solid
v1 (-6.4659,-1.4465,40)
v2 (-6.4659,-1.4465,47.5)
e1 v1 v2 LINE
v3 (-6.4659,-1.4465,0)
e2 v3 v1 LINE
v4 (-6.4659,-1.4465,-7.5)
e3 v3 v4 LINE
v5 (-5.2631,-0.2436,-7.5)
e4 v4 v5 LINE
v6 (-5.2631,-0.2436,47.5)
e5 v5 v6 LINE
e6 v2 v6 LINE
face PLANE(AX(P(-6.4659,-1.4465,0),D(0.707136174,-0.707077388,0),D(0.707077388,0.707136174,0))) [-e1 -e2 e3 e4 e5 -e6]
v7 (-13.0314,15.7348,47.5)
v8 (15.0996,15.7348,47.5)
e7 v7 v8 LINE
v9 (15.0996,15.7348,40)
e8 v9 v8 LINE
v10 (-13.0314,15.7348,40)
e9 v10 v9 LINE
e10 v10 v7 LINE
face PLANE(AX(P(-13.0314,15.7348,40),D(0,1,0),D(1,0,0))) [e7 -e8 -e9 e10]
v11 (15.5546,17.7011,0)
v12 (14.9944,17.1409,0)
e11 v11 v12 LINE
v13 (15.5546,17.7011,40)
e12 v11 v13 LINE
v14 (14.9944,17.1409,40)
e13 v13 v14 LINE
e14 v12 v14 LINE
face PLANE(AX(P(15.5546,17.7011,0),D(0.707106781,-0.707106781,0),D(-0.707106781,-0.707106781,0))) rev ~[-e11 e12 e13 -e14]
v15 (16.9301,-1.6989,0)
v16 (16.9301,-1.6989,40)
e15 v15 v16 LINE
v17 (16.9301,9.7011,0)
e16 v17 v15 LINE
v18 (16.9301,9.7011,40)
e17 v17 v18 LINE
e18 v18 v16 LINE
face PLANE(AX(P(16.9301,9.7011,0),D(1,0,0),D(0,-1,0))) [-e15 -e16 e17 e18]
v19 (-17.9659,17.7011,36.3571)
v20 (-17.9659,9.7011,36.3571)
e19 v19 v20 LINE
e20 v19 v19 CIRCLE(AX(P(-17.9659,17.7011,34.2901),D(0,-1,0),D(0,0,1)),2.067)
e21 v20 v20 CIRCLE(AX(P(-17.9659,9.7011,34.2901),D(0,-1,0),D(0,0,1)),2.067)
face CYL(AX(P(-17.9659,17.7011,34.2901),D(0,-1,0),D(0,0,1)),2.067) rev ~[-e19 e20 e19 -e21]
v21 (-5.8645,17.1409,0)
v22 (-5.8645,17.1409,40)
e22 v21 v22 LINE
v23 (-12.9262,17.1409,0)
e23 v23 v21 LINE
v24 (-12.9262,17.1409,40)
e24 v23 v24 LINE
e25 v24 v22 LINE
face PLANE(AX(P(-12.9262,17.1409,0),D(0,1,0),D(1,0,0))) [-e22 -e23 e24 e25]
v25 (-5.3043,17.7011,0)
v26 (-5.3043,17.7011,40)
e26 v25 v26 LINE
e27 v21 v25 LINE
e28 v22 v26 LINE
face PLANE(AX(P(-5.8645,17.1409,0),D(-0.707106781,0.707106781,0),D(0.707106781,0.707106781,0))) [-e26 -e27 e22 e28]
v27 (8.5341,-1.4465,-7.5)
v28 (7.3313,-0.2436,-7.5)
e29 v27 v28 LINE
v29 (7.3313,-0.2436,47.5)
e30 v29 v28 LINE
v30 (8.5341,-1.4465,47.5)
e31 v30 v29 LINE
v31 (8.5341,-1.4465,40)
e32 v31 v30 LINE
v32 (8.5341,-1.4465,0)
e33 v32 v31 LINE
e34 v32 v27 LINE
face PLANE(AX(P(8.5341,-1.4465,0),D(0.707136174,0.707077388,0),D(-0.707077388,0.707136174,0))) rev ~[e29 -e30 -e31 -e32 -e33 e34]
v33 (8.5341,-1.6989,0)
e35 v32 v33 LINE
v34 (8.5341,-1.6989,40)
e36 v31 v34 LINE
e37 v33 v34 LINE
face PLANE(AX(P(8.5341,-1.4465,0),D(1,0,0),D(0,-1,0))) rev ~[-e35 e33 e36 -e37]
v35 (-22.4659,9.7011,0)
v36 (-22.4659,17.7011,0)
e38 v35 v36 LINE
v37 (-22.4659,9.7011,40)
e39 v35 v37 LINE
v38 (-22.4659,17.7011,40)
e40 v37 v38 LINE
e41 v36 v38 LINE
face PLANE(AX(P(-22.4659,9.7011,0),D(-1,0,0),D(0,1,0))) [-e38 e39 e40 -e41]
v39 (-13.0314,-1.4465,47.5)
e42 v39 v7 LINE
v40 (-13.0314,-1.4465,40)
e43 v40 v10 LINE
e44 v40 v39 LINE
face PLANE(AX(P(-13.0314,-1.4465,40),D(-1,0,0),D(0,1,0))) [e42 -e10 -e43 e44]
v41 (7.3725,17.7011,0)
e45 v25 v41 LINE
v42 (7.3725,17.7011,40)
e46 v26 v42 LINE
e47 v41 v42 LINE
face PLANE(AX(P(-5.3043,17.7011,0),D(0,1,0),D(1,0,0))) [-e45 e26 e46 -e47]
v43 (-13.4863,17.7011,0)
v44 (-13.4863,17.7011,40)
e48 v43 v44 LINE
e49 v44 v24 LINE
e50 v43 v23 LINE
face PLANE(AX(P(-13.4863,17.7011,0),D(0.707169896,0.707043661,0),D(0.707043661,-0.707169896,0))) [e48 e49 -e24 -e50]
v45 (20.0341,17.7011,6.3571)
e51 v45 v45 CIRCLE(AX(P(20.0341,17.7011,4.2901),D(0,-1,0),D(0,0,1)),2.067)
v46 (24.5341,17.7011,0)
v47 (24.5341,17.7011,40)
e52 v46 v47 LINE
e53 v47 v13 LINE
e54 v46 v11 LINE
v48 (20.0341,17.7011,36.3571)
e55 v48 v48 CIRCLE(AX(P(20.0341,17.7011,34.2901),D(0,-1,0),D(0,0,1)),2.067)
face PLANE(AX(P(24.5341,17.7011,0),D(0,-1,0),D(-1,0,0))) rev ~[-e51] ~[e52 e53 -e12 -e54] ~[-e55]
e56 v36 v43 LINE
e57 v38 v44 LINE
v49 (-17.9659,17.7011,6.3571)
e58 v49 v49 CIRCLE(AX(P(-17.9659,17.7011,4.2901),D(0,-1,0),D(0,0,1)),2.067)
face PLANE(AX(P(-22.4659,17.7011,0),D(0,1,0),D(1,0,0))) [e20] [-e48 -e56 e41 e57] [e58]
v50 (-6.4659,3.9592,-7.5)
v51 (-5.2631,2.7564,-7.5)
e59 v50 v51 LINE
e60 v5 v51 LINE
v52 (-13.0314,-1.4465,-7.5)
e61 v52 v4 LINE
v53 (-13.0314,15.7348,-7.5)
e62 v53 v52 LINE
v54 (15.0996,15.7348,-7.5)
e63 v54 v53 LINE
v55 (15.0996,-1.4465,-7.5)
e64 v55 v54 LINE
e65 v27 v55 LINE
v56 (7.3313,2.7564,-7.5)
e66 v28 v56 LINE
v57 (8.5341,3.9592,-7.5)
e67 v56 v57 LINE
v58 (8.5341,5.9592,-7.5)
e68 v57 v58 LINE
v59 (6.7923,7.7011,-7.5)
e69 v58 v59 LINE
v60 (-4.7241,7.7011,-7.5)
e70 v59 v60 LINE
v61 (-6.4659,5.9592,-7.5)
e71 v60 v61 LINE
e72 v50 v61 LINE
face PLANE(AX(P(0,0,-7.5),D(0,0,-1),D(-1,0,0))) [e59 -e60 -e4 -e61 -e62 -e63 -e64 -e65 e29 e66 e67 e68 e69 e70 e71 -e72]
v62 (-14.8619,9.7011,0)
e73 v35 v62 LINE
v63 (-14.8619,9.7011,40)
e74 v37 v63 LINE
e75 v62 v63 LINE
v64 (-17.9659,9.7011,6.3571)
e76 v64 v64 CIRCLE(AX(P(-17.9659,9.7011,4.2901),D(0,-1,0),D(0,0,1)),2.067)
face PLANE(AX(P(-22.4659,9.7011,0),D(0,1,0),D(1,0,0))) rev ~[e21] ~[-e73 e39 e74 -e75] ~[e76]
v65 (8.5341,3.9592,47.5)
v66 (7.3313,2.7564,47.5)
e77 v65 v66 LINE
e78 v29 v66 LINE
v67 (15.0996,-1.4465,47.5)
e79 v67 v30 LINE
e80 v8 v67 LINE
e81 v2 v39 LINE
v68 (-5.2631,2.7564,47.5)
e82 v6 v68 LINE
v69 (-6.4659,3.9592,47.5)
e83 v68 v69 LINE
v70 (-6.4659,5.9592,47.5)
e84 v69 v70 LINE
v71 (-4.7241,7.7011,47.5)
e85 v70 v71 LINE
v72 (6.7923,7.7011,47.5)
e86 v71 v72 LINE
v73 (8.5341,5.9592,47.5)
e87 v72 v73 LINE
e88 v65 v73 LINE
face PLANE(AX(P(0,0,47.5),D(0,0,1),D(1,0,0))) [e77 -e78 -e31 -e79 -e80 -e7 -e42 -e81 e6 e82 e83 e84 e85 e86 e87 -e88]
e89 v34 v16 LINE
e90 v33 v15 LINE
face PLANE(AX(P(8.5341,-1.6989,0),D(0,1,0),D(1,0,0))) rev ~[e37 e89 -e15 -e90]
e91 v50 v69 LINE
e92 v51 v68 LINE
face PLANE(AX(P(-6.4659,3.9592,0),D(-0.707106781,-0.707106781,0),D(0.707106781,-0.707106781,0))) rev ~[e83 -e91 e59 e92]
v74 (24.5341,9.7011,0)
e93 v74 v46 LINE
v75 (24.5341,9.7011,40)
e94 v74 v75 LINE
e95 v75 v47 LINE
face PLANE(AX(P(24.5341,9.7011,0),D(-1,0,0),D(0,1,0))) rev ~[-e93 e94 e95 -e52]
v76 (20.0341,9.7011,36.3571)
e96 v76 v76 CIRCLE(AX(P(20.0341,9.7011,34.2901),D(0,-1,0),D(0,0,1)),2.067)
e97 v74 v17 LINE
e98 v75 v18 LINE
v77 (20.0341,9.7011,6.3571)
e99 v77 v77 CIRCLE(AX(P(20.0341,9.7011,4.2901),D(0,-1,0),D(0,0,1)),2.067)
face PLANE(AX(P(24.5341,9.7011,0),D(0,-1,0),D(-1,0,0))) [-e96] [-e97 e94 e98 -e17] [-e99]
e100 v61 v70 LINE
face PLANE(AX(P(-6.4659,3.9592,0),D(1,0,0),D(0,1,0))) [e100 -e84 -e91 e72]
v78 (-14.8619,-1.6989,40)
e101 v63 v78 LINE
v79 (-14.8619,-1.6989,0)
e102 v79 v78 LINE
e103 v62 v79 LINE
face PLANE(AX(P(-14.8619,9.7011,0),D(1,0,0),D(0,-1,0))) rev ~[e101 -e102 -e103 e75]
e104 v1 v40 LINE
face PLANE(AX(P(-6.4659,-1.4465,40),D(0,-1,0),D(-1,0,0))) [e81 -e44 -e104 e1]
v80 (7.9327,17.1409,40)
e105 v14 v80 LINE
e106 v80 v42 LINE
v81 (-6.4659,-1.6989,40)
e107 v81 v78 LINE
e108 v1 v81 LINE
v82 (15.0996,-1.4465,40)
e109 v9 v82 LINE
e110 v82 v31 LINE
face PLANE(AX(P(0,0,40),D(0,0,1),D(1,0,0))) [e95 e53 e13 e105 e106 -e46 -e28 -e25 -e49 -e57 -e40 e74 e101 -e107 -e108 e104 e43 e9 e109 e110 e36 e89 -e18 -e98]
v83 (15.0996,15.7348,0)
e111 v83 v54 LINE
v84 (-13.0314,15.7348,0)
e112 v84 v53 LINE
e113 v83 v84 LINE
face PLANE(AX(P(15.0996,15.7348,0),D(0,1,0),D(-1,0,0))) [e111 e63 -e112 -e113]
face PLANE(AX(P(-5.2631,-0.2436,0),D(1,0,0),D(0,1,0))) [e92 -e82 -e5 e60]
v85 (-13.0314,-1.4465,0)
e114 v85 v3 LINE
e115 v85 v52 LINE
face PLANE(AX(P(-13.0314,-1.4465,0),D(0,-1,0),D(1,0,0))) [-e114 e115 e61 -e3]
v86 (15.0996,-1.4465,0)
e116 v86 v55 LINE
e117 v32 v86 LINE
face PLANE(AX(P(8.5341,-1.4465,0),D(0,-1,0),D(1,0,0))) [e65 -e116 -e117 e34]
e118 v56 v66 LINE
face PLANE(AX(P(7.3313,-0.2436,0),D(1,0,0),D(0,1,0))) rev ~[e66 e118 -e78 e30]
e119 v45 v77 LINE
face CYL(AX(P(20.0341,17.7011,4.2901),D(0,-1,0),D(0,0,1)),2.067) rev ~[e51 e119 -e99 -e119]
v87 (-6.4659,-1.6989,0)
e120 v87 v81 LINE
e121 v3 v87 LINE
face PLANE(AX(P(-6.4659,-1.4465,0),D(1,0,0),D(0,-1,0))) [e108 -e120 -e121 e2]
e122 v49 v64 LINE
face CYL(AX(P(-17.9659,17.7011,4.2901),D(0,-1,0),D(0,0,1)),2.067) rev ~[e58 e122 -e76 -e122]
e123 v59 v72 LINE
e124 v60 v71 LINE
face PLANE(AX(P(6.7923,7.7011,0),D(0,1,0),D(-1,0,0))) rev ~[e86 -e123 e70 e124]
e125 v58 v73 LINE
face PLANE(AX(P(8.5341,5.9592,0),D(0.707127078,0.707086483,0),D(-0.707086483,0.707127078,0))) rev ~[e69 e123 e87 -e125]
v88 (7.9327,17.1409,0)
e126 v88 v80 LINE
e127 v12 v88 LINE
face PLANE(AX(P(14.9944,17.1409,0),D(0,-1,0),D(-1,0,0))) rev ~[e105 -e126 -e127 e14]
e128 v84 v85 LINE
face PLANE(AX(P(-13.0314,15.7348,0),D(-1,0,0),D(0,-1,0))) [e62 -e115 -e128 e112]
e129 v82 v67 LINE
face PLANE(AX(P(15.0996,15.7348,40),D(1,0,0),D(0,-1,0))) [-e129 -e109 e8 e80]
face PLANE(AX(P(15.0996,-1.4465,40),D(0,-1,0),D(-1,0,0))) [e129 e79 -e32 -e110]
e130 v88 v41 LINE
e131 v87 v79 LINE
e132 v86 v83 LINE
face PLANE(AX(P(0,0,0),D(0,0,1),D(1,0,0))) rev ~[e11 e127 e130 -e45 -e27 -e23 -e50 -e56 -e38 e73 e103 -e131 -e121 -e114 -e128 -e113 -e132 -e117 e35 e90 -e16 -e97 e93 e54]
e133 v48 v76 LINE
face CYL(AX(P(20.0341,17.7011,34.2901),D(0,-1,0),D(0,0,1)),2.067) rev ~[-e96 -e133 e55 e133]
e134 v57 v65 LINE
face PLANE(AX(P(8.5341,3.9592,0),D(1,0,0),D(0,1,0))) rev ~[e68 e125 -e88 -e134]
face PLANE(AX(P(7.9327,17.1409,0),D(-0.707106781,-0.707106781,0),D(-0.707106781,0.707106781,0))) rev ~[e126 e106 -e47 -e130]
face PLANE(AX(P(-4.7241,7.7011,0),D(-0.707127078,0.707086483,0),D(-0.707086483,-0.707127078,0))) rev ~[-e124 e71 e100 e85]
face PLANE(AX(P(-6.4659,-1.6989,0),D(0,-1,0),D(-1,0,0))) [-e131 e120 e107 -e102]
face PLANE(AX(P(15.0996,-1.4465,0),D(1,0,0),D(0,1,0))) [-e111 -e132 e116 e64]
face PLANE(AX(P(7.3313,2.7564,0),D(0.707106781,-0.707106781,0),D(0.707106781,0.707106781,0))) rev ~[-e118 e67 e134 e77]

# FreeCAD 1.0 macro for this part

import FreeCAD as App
import Part
import Sketcher


def add_polygon(sketch, points):
    """Adds a closed chain of lines whose ends are joined by coincident constraints."""
    first, n = sketch.GeometryCount, len(points)
    for a, b in zip(points, points[1:] + points[:1]):
        sketch.addGeometry(Part.LineSegment(App.Vector(*a, 0), App.Vector(*b, 0)), False)
    for i in range(n):
        sketch.addConstraint(Sketcher.Constraint("Coincident", first + i, 2, first + (i + 1) % n, 1))

doc = App.newDocument("Part")
body = doc.addObject("PartDesign::Body", "Body")

sketch1 = body.newObject("Sketcher::SketchObject", "Sketch")
sketch1.AttachmentSupport = (doc.getObject("XY_Plane"), [""])
sketch1.MapMode = "FlatFace"
add_polygon(sketch1, [(-4.72, 7.7), (6.79, 7.7), (8.53, 5.96), (8.53, 3.96), (7.33, 2.76), (7.33, -0.24), (8.53, -1.45), (8.53, -1.7), (16.93, -1.7), (16.93, 9.7), (24.53, 9.7), (24.53, 17.7), (15.55, 17.7), (14.99, 17.14), (7.93, 17.14), (7.37, 17.7), (-5.3, 17.7), (-5.86, 17.14), (-12.93, 17.14), (-13.49, 17.7), (-22.47, 17.7), (-22.47, 9.7), (-14.86, 9.7), (-14.86, -1.7), (-6.47, -1.7), (-6.47, -1.45), (-5.26, -0.24), (-5.26, 2.76), (-6.47, 3.96), (-6.47, 5.96)])
sketch1.addConstraint([
    Sketcher.Constraint("Horizontal", 0),
    Sketcher.Constraint("Vertical", 2),
    Sketcher.Constraint("Vertical", 4),
    Sketcher.Constraint("Vertical", 6),
    Sketcher.Constraint("Horizontal", 7),
    Sketcher.Constraint("Vertical", 8),
    Sketcher.Constraint("Horizontal", 9),
    Sketcher.Constraint("Vertical", 10),
    Sketcher.Constraint("Horizontal", 11),
    Sketcher.Constraint("Horizontal", 13),
    Sketcher.Constraint("Horizontal", 15),
    Sketcher.Constraint("Horizontal", 17),
    Sketcher.Constraint("Horizontal", 19),
    Sketcher.Constraint("Vertical", 20),
    Sketcher.Constraint("Horizontal", 21),
    Sketcher.Constraint("Vertical", 22),
    Sketcher.Constraint("Horizontal", 23),
    Sketcher.Constraint("Vertical", 24),
    Sketcher.Constraint("Vertical", 26),
    Sketcher.Constraint("Vertical", 28),
    Sketcher.Constraint("Perpendicular", 1, 3),
    Sketcher.Constraint("Perpendicular", 3, 5),
    Sketcher.Constraint("Perpendicular", 5, 12),
    Sketcher.Constraint("Perpendicular", 12, 14),
    Sketcher.Constraint("Perpendicular", 14, 16),
    Sketcher.Constraint("Perpendicular", 16, 18),
    Sketcher.Constraint("Perpendicular", 18, 25),
    Sketcher.Constraint("Perpendicular", 25, 27),
    Sketcher.Constraint("Perpendicular", 27, 29),
    Sketcher.Constraint("Horizontal", 11, 2, 14, 2),
    Sketcher.Constraint("Horizontal", 13, 2, 16, 2),
    Sketcher.Constraint("Horizontal", 15, 2, 18, 2),
    Sketcher.Constraint("Horizontal", 9, 2, 20, 2),
    Sketcher.Constraint("Horizontal", 7, 2, 22, 2),
    Sketcher.Constraint("Horizontal", 5, 2, 24, 2),
    Sketcher.Constraint("Horizontal", 4, 2, 25, 2),
    Sketcher.Constraint("Horizontal", 3, 2, 26, 2),
    Sketcher.Constraint("Horizontal", 2, 2, 27, 2),
    Sketcher.Constraint("Horizontal", 1, 2, 28, 2),
    Sketcher.Constraint("Vertical", 2, 2, 5, 2),
    Sketcher.Constraint("Vertical", 24, 2, 27, 2),
    Sketcher.Constraint("Equal", 13, 17),
    Sketcher.Constraint("Equal", 11, 19),
    Sketcher.Constraint("Equal", 9, 21),
    Sketcher.Constraint("Equal", 7, 23),
    Sketcher.Constraint("DistanceY", 2, 2, 2, 1, 2.0),
    Sketcher.Constraint("DistanceY", 4, 2, 4, 1, 3.0),
    Sketcher.Constraint("DistanceY", 0, 2, 8, 2, 2.0),
    Sketcher.Constraint("DistanceY", 10, 1, 10, 2, 8.0),
    Sketcher.Constraint("DistanceY", 8, 1, 8, 2, 11.4),
    Sketcher.Constraint("DistanceX", 1, 2, 9, 2, 16.0),
    Sketcher.Constraint("DistanceX", 23, 2, 6, 2, 15.0),
    Sketcher.Constraint("DistanceX", 7, 1, 7, 2, 8.396),
    Sketcher.Constraint("DistanceX", -1, 1, 7, 2, 16.93),
    Sketcher.Constraint("DistanceX", 18, 2, 17, 2, 0.56),
    Sketcher.Constraint("Distance", 3, 1.701),
    Sketcher.Constraint("DistanceX", 0, 1, 0, 2, 11.5164),
    Sketcher.Constraint("DistanceX", 11, 2, 11, 1, 8.9795),
    Sketcher.Constraint("DistanceX", 13, 2, 13, 1, 7.0617),
    Sketcher.Constraint("DistanceY", -1, 1, 0, 2, 7.701),
])
pad1 = body.newObject("PartDesign::Pad", "Pad")
pad1.Profile = sketch1
pad1.Length = 40

sketch2 = body.newObject("Sketcher::SketchObject", "Sketch001")
sketch2.AttachmentSupport = (doc.getObject("XY_Plane"), [""])
sketch2.MapMode = "FlatFace"
sketch2.AttachmentOffset = App.Placement(App.Vector(0, 0, 40), App.Rotation())
add_polygon(sketch2, [(-13, 15.7), (-13, -1.4), (-6.5, -1.4), (-5.3, -0.2), (-5.3, 2.8), (-6.5, 4), (-6.5, 6), (-4.7, 7.7), (6.8, 7.7), (8.5, 6), (8.5, 4), (7.3, 2.8), (7.3, -0.2), (8.5, -1.4), (15.1, -1.4), (15.1, 15.7)])
sketch2.addConstraint([
    Sketcher.Constraint("Vertical", 0),
    Sketcher.Constraint("Horizontal", 1),
    Sketcher.Constraint("Vertical", 3),
    Sketcher.Constraint("Vertical", 5),
    Sketcher.Constraint("Horizontal", 7),
    Sketcher.Constraint("Vertical", 9),
    Sketcher.Constraint("Vertical", 11),
    Sketcher.Constraint("Horizontal", 13),
    Sketcher.Constraint("Vertical", 14),
    Sketcher.Constraint("Horizontal", 15),
    Sketcher.Constraint("Perpendicular", 2, 4),
    Sketcher.Constraint("Perpendicular", 4, 6),
    Sketcher.Constraint("Perpendicular", 6, 8),
    Sketcher.Constraint("Perpendicular", 8, 10),
    Sketcher.Constraint("Perpendicular", 10, 12),
    Sketcher.Constraint("Horizontal", 5, 2, 8, 2),
    Sketcher.Constraint("Horizontal", 4, 2, 9, 2),
    Sketcher.Constraint("Horizontal", 3, 2, 10, 2),
    Sketcher.Constraint("Horizontal", 2, 2, 11, 2),
    Sketcher.Constraint("Horizontal", 1, 2, 12, 2),
    Sketcher.Constraint("Vertical", 1, 2, 4, 2),
    Sketcher.Constraint("Vertical", 9, 2, 12, 2),
    Sketcher.Constraint("Equal", 1, 13),
    Sketcher.Constraint("DistanceY", 3, 1, 3, 2, 3.0),
    Sketcher.Constraint("DistanceY", 5, 1, 5, 2, 2.0),
    Sketcher.Constraint("DistanceX", 5, 2, 8, 2, 15.0),
    Sketcher.Constraint("DistanceX", 15, 2, 15, 1, 28.131),
    Sketcher.Constraint("Distance", 2, 1.701),
    Sketcher.Constraint("DistanceX", 7, 1, 7, 2, 11.5164),
    Sketcher.Constraint("DistanceY", 0, 2, 0, 1, 17.1813),
    Sketcher.Constraint("DistanceX", 1, 2, -1, 1, 6.466),
    Sketcher.Constraint("DistanceY", -1, 1, 6, 2, 7.701),
])
pad2 = body.newObject("PartDesign::Pad", "Pad001")
pad2.Profile = sketch2
pad2.Length = 7.5

sketch3 = body.newObject("Sketcher::SketchObject", "Sketch002")
sketch3.AttachmentSupport = (doc.getObject("XY_Plane"), [""])
sketch3.MapMode = "FlatFace"
add_polygon(sketch3, [(15.1, 15.7), (15.1, -1.4), (8.5, -1.4), (7.3, -0.2), (7.3, 2.8), (8.5, 4), (8.5, 6), (6.8, 7.7), (-4.7, 7.7), (-6.5, 6), (-6.5, 4), (-5.3, 2.8), (-5.3, -0.2), (-6.5, -1.4), (-13, -1.4), (-13, 15.7)])
sketch3.addConstraint([
    Sketcher.Constraint("Vertical", 0),
    Sketcher.Constraint("Horizontal", 1),
    Sketcher.Constraint("Vertical", 3),
    Sketcher.Constraint("Vertical", 5),
    Sketcher.Constraint("Horizontal", 7),
    Sketcher.Constraint("Vertical", 9),
    Sketcher.Constraint("Vertical", 11),
    Sketcher.Constraint("Horizontal", 13),
    Sketcher.Constraint("Vertical", 14),
    Sketcher.Constraint("Horizontal", 15),
    Sketcher.Constraint("Perpendicular", 2, 4),
    Sketcher.Constraint("Perpendicular", 4, 6),
    Sketcher.Constraint("Perpendicular", 6, 8),
    Sketcher.Constraint("Perpendicular", 8, 10),
    Sketcher.Constraint("Perpendicular", 10, 12),
    Sketcher.Constraint("Horizontal", 5, 2, 8, 2),
    Sketcher.Constraint("Horizontal", 4, 2, 9, 2),
    Sketcher.Constraint("Horizontal", 3, 2, 10, 2),
    Sketcher.Constraint("Horizontal", 2, 2, 11, 2),
    Sketcher.Constraint("Horizontal", 1, 2, 12, 2),
    Sketcher.Constraint("Vertical", 1, 2, 4, 2),
    Sketcher.Constraint("Vertical", 9, 2, 12, 2),
    Sketcher.Constraint("Equal", 1, 13),
    Sketcher.Constraint("DistanceY", 3, 1, 3, 2, 3.0),
    Sketcher.Constraint("DistanceY", 5, 1, 5, 2, 2.0),
    Sketcher.Constraint("DistanceX", 8, 2, 5, 2, 15.0),
    Sketcher.Constraint("DistanceX", 15, 1, 15, 2, 28.131),
    Sketcher.Constraint("Distance", 2, 1.701),
    Sketcher.Constraint("DistanceX", 7, 2, 7, 1, 11.5164),
    Sketcher.Constraint("DistanceY", 0, 2, 0, 1, 17.1813),
    Sketcher.Constraint("DistanceX", -1, 1, 1, 2, 8.534),
    Sketcher.Constraint("DistanceY", -1, 1, 6, 2, 7.701),
])
pad3 = body.newObject("PartDesign::Pad", "Pad002")
pad3.Profile = sketch3
pad3.Length = 7.5
pad3.Reversed = True

sketch4 = body.newObject("Sketcher::SketchObject", "Sketch003")
sketch4.AttachmentSupport = (doc.getObject("XZ_Plane"), [""])
sketch4.MapMode = "FlatFace"
sketch4.AttachmentOffset = App.Placement(App.Vector(0, 0, -17.7011), App.Rotation())
sketch4.addGeometry([
    Part.Circle(App.Vector(-18, 4.3, 0), App.Vector(0, 0, 1), 2.1),
    Part.Circle(App.Vector(-18, 34.3, 0), App.Vector(0, 0, 1), 2.1),
    Part.Circle(App.Vector(20, 34.3, 0), App.Vector(0, 0, 1), 2.1),
    Part.Circle(App.Vector(20, 4.3, 0), App.Vector(0, 0, 1), 2.1),
], False)
sketch4.addConstraint([
    Sketcher.Constraint("Equal", 0, 1),
    Sketcher.Constraint("Equal", 1, 2),
    Sketcher.Constraint("Equal", 2, 3),
    Sketcher.Constraint("Horizontal", 1, 3, 2, 3),
    Sketcher.Constraint("Horizontal", 0, 3, 3, 3),
    Sketcher.Constraint("Vertical", 0, 3, 1, 3),
    Sketcher.Constraint("Vertical", 2, 3, 3, 3),
    Sketcher.Constraint("Diameter", 0, 4.134),
    Sketcher.Constraint("DistanceY", 0, 3, 1, 3, 30.0),
    Sketcher.Constraint("DistanceX", 1, 3, 2, 3, 38.0),
    Sketcher.Constraint("DistanceY", -1, 1, 0, 3, 4.29),
    Sketcher.Constraint("DistanceX", 0, 3, -1, 1, 17.966),
])
doc.recompute()
hole = body.newObject("PartDesign::Hole", "Hole")
hole.Profile = sketch4
hole.ThreadType = "None"
hole.Diameter = 4.134
hole.DepthType = "ThroughAll"
hole.Reversed = True

doc.recompute()
